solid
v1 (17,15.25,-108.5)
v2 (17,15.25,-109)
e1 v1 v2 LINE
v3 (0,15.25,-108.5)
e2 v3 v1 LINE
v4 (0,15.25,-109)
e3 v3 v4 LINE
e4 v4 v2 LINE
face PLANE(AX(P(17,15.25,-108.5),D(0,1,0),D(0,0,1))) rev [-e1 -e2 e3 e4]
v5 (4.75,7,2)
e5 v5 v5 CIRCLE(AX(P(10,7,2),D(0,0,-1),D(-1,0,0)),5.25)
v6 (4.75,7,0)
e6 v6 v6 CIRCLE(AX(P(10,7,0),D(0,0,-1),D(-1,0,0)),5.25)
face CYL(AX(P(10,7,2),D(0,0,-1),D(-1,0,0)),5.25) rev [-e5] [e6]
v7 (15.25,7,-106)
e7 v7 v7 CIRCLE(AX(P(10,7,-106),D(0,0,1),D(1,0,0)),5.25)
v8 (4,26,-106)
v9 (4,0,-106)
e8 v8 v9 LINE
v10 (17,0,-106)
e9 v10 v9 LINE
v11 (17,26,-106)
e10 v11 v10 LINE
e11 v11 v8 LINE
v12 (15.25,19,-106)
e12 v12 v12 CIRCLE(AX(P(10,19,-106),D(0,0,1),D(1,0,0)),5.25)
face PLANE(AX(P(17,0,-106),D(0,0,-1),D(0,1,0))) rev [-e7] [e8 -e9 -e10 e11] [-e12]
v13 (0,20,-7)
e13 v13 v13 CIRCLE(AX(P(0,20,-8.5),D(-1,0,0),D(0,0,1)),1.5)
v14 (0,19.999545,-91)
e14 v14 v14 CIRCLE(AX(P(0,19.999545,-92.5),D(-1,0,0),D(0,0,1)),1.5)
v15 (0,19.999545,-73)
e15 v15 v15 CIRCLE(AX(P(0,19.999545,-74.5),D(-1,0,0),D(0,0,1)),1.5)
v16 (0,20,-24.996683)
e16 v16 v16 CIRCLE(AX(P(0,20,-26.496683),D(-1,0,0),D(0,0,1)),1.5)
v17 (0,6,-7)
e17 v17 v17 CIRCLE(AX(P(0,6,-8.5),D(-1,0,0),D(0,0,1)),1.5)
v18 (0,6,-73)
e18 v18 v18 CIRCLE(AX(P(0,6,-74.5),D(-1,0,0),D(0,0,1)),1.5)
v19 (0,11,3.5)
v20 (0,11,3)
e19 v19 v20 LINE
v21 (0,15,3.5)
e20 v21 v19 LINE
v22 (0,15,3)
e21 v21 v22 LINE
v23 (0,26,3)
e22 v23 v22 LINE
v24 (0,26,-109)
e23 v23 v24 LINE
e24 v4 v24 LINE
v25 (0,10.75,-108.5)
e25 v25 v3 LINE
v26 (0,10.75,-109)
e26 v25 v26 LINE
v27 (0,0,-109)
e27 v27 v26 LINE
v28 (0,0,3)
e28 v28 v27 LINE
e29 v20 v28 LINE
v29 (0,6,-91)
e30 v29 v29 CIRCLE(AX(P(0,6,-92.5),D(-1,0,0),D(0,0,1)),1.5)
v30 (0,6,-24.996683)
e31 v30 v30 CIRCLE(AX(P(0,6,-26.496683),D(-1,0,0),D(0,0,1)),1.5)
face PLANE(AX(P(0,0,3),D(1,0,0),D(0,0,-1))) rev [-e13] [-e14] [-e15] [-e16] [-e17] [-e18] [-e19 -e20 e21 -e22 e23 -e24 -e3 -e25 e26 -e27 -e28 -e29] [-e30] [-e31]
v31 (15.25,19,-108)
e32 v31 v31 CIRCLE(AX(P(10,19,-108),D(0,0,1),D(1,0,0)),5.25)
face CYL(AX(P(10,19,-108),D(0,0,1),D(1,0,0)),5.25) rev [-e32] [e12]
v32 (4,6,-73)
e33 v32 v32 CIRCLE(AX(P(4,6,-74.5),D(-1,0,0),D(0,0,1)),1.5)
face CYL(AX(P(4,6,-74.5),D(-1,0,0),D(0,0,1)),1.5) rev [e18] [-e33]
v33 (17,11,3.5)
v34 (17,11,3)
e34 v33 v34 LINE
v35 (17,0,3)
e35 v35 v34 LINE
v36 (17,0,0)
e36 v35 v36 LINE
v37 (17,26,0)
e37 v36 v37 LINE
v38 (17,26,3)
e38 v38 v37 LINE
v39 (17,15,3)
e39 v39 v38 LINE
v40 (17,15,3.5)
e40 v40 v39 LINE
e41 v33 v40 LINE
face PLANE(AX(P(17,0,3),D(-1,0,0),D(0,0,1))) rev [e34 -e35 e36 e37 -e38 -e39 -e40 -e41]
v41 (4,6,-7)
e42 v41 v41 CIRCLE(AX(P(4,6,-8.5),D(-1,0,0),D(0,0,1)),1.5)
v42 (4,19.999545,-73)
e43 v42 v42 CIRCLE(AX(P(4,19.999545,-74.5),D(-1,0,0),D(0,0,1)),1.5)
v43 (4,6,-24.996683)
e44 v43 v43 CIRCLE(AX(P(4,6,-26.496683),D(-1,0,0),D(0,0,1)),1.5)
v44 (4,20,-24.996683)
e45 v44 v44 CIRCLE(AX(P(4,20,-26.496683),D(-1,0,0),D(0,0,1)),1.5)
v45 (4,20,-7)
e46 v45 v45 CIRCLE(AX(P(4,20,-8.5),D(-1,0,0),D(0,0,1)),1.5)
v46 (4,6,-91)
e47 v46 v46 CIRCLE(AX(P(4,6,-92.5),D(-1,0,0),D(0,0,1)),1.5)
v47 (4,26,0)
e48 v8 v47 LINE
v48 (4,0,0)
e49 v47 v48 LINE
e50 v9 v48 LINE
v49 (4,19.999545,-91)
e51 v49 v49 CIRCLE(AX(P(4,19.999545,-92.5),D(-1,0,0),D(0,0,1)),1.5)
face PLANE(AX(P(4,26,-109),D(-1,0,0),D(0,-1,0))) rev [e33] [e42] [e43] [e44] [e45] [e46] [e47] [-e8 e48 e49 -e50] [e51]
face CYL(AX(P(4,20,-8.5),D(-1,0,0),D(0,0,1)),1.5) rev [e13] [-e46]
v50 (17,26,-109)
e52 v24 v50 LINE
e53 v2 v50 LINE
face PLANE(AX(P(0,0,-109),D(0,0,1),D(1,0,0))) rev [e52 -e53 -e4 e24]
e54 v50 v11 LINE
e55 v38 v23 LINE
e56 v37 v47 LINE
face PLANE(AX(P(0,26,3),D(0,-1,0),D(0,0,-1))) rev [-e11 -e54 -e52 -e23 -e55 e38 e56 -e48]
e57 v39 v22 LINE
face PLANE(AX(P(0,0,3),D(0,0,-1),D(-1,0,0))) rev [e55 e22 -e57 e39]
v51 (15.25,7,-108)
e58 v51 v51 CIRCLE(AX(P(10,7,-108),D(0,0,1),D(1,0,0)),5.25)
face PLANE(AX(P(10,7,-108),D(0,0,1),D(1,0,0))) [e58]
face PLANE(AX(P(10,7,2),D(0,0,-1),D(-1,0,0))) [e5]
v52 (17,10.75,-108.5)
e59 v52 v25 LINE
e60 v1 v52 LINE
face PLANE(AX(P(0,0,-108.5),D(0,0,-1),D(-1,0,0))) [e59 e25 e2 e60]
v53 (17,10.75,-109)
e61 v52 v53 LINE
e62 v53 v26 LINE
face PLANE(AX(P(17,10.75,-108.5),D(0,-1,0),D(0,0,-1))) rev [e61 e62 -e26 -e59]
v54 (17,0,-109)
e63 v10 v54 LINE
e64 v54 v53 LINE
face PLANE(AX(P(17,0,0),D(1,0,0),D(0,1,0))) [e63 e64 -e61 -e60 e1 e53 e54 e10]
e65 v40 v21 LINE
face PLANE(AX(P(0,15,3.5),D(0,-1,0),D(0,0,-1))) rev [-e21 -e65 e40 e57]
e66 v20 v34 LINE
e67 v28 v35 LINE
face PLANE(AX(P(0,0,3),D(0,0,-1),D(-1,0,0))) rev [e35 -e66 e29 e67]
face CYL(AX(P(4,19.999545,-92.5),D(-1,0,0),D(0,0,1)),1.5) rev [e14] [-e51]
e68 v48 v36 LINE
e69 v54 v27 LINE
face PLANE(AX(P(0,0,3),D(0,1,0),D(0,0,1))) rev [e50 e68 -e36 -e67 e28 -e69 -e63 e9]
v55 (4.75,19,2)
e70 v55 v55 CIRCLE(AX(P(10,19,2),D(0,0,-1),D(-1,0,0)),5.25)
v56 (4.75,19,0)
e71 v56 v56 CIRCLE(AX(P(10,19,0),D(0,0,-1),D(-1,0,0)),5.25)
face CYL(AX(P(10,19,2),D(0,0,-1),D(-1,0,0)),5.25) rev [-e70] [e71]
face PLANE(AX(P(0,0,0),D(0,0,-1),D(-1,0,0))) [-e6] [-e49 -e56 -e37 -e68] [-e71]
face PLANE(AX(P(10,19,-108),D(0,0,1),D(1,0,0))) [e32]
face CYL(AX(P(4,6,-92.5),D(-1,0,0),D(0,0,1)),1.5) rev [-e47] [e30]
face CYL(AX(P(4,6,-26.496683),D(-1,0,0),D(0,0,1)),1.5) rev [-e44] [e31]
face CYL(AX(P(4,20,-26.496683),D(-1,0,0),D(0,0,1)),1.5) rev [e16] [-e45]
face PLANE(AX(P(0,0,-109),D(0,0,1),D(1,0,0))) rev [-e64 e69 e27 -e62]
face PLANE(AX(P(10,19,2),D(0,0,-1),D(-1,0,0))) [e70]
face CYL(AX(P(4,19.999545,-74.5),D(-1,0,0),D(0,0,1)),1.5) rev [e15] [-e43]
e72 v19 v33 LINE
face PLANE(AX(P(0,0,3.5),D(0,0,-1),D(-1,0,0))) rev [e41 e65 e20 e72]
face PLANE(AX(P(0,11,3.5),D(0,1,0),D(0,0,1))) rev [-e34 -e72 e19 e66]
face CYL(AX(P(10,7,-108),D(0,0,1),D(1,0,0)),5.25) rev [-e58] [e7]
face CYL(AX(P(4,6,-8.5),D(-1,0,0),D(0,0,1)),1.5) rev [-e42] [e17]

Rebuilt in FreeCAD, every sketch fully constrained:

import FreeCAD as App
import Part
import Sketcher
from FreeCAD import Vector
Q = App.Units.Quantity

doc = App.newDocument("Part")
params = doc.addObject("Spreadsheet::Sheet", "Params")
for row, (alias, value) in enumerate([
    ("sketch1_width", "17 mm"),
    ("sketch1_height", "26 mm"),
    ("pad1_length", "3 mm"),
    ("sketch2_width", "4 mm"),
    ("sketch2_height", "26 mm"),
    ("pad2_length", "109 mm"),
    ("sketch3_diameter", "3 mm"),
    ("pocket1_length", "4 mm"),
    ("sketch4_diameter", "3 mm"),
    ("pocket2_length", "4 mm"),
    ("sketch5_width", "26 mm"),
    ("sketch5_height", "3 mm"),
    ("pad3_length", "13 mm"),
    ("sketch6_diameter", "10.5 mm"),
    ("pocket3_length", "2 mm"),
    ("sketch7_diameter", "10.5 mm"),
    ("pocket4_length", "2 mm"),
    ("sketch8_width", "17 mm"),
    ("sketch8_height", "4 mm"),
    ("pad4_length", "0.5 mm"),
    ("sketch9_width", "17 mm"),
    ("sketch9_height", "4.5 mm"),
    ("pocket5_length", "0.5 mm"),
], start=1):
    params.set(f"A{row}", alias)
    params.set(f"B{row}", "=" + value)
    params.setAlias(f"B{row}", alias)

body = doc.addObject("PartDesign::Body", "Body")

# Sketch on XY plane
sketch1 = body.newObject("Sketcher::SketchObject", "Sketch")
sketch1.AttachmentSupport = (doc.getObject("XY_Plane"), [""])
sketch1.MapMode = "FlatFace"
sketch1.addGeometry(Part.LineSegment(Vector(0, 26, 0), Vector(0, 0, 0)), False)
sketch1.addGeometry(Part.LineSegment(Vector(0, 0, 0), Vector(17, 0, 0)), False)
sketch1.addGeometry(Part.LineSegment(Vector(17, 0, 0), Vector(17, 26, 0)), False)
sketch1.addGeometry(Part.LineSegment(Vector(17, 26, 0), Vector(0, 26, 0)), False)
sketch1.addConstraint(Sketcher.Constraint("Coincident", 0, 2, 1, 1))
sketch1.addConstraint(Sketcher.Constraint("Coincident", 1, 2, 2, 1))
sketch1.addConstraint(Sketcher.Constraint("Coincident", 2, 2, 3, 1))
sketch1.addConstraint(Sketcher.Constraint("Coincident", 3, 2, 0, 1))
sketch1.addConstraint(Sketcher.Constraint("Vertical", 0))
sketch1.addConstraint(Sketcher.Constraint("Horizontal", 1))
sketch1.addConstraint(Sketcher.Constraint("Vertical", 2))
sketch1.addConstraint(Sketcher.Constraint("Horizontal", 3))
sketch1.addConstraint(Sketcher.Constraint("Coincident", 0, 2, -1, 1))
sketch1.addConstraint(Sketcher.Constraint("DistanceX", 1, 1, 1, 2, Q("17 mm")))
sketch1.addConstraint(Sketcher.Constraint("DistanceY", 0, 2, 0, 1, Q("26 mm")))
sketch1.setExpression("Constraints[9]", "Params.sketch1_width")
sketch1.setExpression("Constraints[10]", "Params.sketch1_height")
pad1 = body.newObject("PartDesign::Pad", "Pad")
pad1.Profile = sketch1
pad1.setExpression("Length", "Params.pad1_length")

# Sketch on XY plane
sketch2 = body.newObject("Sketcher::SketchObject", "Sketch001")
sketch2.AttachmentSupport = (doc.getObject("XY_Plane"), [""])
sketch2.MapMode = "FlatFace"
sketch2.addGeometry(Part.LineSegment(Vector(4, 26, 0), Vector(4, 0, 0)), False)
sketch2.addGeometry(Part.LineSegment(Vector(4, 0, 0), Vector(0, 0, 0)), False)
sketch2.addGeometry(Part.LineSegment(Vector(0, 0, 0), Vector(0, 26, 0)), False)
sketch2.addGeometry(Part.LineSegment(Vector(0, 26, 0), Vector(4, 26, 0)), False)
sketch2.addConstraint(Sketcher.Constraint("Coincident", 0, 2, 1, 1))
sketch2.addConstraint(Sketcher.Constraint("Coincident", 1, 2, 2, 1))
sketch2.addConstraint(Sketcher.Constraint("Coincident", 2, 2, 3, 1))
sketch2.addConstraint(Sketcher.Constraint("Coincident", 3, 2, 0, 1))
sketch2.addConstraint(Sketcher.Constraint("Vertical", 0))
sketch2.addConstraint(Sketcher.Constraint("Horizontal", 1))
sketch2.addConstraint(Sketcher.Constraint("Vertical", 2))
sketch2.addConstraint(Sketcher.Constraint("Horizontal", 3))
sketch2.addConstraint(Sketcher.Constraint("Coincident", 1, 2, -1, 1))
sketch2.addConstraint(Sketcher.Constraint("DistanceX", 1, 2, 1, 1, Q("4 mm")))
sketch2.addConstraint(Sketcher.Constraint("DistanceY", 0, 2, 0, 1, Q("26 mm")))
sketch2.setExpression("Constraints[9]", "Params.sketch2_width")
sketch2.setExpression("Constraints[10]", "Params.sketch2_height")
pad2 = body.newObject("PartDesign::Pad", "Pad001")
pad2.Profile = sketch2
pad2.setExpression("Length", "Params.pad2_length")
pad2.Reversed = True

# Sketch on YZ plane
sketch3 = body.newObject("Sketcher::SketchObject", "Sketch002")
sketch3.AttachmentSupport = (doc.getObject("YZ_Plane"), [""])
sketch3.MapMode = "FlatFace"
sketch3.addGeometry(Part.Circle(Vector(20, -8.5, 0), Vector(0, 0, 1), 1.5), False)
sketch3.addGeometry(Part.Circle(Vector(6, -8.5, 0), Vector(0, 0, 1), 1.5), False)
sketch3.addGeometry(Part.Circle(Vector(20, -26.5, 0), Vector(0, 0, 1), 1.5), False)
sketch3.addGeometry(Part.Circle(Vector(6, -26.5, 0), Vector(0, 0, 1), 1.5), False)
sketch3.addConstraint(Sketcher.Constraint("Equal", 0, 1))
sketch3.addConstraint(Sketcher.Constraint("Equal", 1, 2))
sketch3.addConstraint(Sketcher.Constraint("Equal", 2, 3))
sketch3.addConstraint(Sketcher.Constraint("Horizontal", 0, 3, 1, 3))
sketch3.addConstraint(Sketcher.Constraint("Horizontal", 2, 3, 3, 3))
sketch3.addConstraint(Sketcher.Constraint("Vertical", 0, 3, 2, 3))
sketch3.addConstraint(Sketcher.Constraint("Vertical", 1, 3, 3, 3))
sketch3.addConstraint(Sketcher.Constraint("Diameter", 0, Q("3 mm")))
sketch3.addConstraint(Sketcher.Constraint("DistanceX", -1, 1, 0, 3, Q("20 mm")))
sketch3.addConstraint(Sketcher.Constraint("DistanceX", -1, 1, 1, 3, Q("6 mm")))
sketch3.addConstraint(Sketcher.Constraint("DistanceY", 0, 3, -1, 1, Q("8.5 mm")))
sketch3.addConstraint(Sketcher.Constraint("DistanceY", 2, 3, -1, 1, Q("26.496683 mm")))
sketch3.setExpression("Constraints[7]", "Params.sketch3_diameter")
pocket1 = body.newObject("PartDesign::Pocket", "Pocket")
pocket1.Profile = sketch3
pocket1.setExpression("Length", "Params.pocket1_length")
pocket1.Reversed = True

# Sketch on YZ plane
sketch4 = body.newObject("Sketcher::SketchObject", "Sketch003")
sketch4.AttachmentSupport = (doc.getObject("YZ_Plane"), [""])
sketch4.MapMode = "FlatFace"
sketch4.addGeometry(Part.Circle(Vector(20, -92.5, 0), Vector(0, 0, 1), 1.5), False)
sketch4.addGeometry(Part.Circle(Vector(6, -92.5, 0), Vector(0, 0, 1), 1.5), False)
sketch4.addGeometry(Part.Circle(Vector(20, -74.5, 0), Vector(0, 0, 1), 1.5), False)
sketch4.addGeometry(Part.Circle(Vector(6, -74.5, 0), Vector(0, 0, 1), 1.5), False)
sketch4.addConstraint(Sketcher.Constraint("Equal", 0, 1))
sketch4.addConstraint(Sketcher.Constraint("Equal", 1, 2))
sketch4.addConstraint(Sketcher.Constraint("Equal", 2, 3))
sketch4.addConstraint(Sketcher.Constraint("Horizontal", 0, 3, 1, 3))
sketch4.addConstraint(Sketcher.Constraint("Horizontal", 2, 3, 3, 3))
sketch4.addConstraint(Sketcher.Constraint("Vertical", 0, 3, 2, 3))
sketch4.addConstraint(Sketcher.Constraint("Vertical", 1, 3, 3, 3))
sketch4.addConstraint(Sketcher.Constraint("Diameter", 0, Q("3 mm")))
sketch4.addConstraint(Sketcher.Constraint("DistanceX", -1, 1, 1, 3, Q("6 mm")))
sketch4.addConstraint(Sketcher.Constraint("DistanceY", 0, 3, 2, 3, Q("18 mm")))
sketch4.addConstraint(Sketcher.Constraint("DistanceY", 0, 3, -1, 1, Q("92.5 mm")))
sketch4.addConstraint(Sketcher.Constraint("DistanceX", -1, 1, 0, 3, Q("19.999545 mm")))
sketch4.setExpression("Constraints[7]", "Params.sketch4_diameter")
pocket2 = body.newObject("PartDesign::Pocket", "Pocket001")
pocket2.Profile = sketch4
pocket2.setExpression("Length", "Params.pocket2_length")
pocket2.Reversed = True

# Sketch on YZ plane
sketch5 = body.newObject("Sketcher::SketchObject", "Sketch004")
sketch5.AttachmentSupport = (doc.getObject("YZ_Plane"), [""])
sketch5.MapMode = "FlatFace"
sketch5.AttachmentOffset = App.Placement(Vector(0, 0, 4), App.Rotation())
sketch5.addGeometry(Part.LineSegment(Vector(26, -106, 0), Vector(0, -106, 0)), False)
sketch5.addGeometry(Part.LineSegment(Vector(0, -106, 0), Vector(0, -109, 0)), False)
sketch5.addGeometry(Part.LineSegment(Vector(0, -109, 0), Vector(26, -109, 0)), False)
sketch5.addGeometry(Part.LineSegment(Vector(26, -109, 0), Vector(26, -106, 0)), False)
sketch5.addConstraint(Sketcher.Constraint("Coincident", 0, 2, 1, 1))
sketch5.addConstraint(Sketcher.Constraint("Coincident", 1, 2, 2, 1))
sketch5.addConstraint(Sketcher.Constraint("Coincident", 2, 2, 3, 1))
sketch5.addConstraint(Sketcher.Constraint("Coincident", 3, 2, 0, 1))
sketch5.addConstraint(Sketcher.Constraint("Horizontal", 0))
sketch5.addConstraint(Sketcher.Constraint("Vertical", 1))
sketch5.addConstraint(Sketcher.Constraint("Horizontal", 2))
sketch5.addConstraint(Sketcher.Constraint("Vertical", 3))
sketch5.addConstraint(Sketcher.Constraint("PointOnObject", 0, 2, -2))
sketch5.addConstraint(Sketcher.Constraint("DistanceX", 0, 2, 0, 1, Q("26 mm")))
sketch5.addConstraint(Sketcher.Constraint("DistanceY", 1, 2, 1, 1, Q("3 mm")))
sketch5.addConstraint(Sketcher.Constraint("DistanceY", 0, 2, -1, 1, Q("106 mm")))
sketch5.setExpression("Constraints[9]", "Params.sketch5_width")
sketch5.setExpression("Constraints[10]", "Params.sketch5_height")
pad3 = body.newObject("PartDesign::Pad", "Pad002")
pad3.Profile = sketch5
pad3.setExpression("Length", "Params.pad3_length")

# Sketch on XY plane
sketch6 = body.newObject("Sketcher::SketchObject", "Sketch005")
sketch6.AttachmentSupport = (doc.getObject("XY_Plane"), [""])
sketch6.MapMode = "FlatFace"
sketch6.addGeometry(Part.Circle(Vector(10, 7, 0), Vector(0, 0, 1), 5), False)
sketch6.addGeometry(Part.Circle(Vector(10, 19, 0), Vector(0, 0, 1), 5), False)
sketch6.addConstraint(Sketcher.Constraint("Equal", 0, 1))
sketch6.addConstraint(Sketcher.Constraint("Vertical", 0, 3, 1, 3))
sketch6.addConstraint(Sketcher.Constraint("Diameter", 0, Q("10.5 mm")))
sketch6.addConstraint(Sketcher.Constraint("DistanceX", -1, 1, 0, 3, Q("10 mm")))
sketch6.addConstraint(Sketcher.Constraint("DistanceY", -1, 1, 0, 3, Q("7 mm")))
sketch6.addConstraint(Sketcher.Constraint("DistanceY", -1, 1, 1, 3, Q("19 mm")))
sketch6.setExpression("Constraints[2]", "Params.sketch6_diameter")
pocket3 = body.newObject("PartDesign::Pocket", "Pocket002")
pocket3.Profile = sketch6
pocket3.setExpression("Length", "Params.pocket3_length")
pocket3.Reversed = True

# Sketch on XY plane
sketch7 = body.newObject("Sketcher::SketchObject", "Sketch006")
sketch7.AttachmentSupport = (doc.getObject("XY_Plane"), [""])
sketch7.MapMode = "FlatFace"
sketch7.AttachmentOffset = App.Placement(Vector(0, 0, -108), App.Rotation())
sketch7.addGeometry(Part.Circle(Vector(10, 19, 0), Vector(0, 0, 1), 5), False)
sketch7.addGeometry(Part.Circle(Vector(10, 7, 0), Vector(0, 0, 1), 5), False)
sketch7.addConstraint(Sketcher.Constraint("Equal", 0, 1))
sketch7.addConstraint(Sketcher.Constraint("Vertical", 0, 3, 1, 3))
sketch7.addConstraint(Sketcher.Constraint("Diameter", 0, Q("10.5 mm")))
sketch7.addConstraint(Sketcher.Constraint("DistanceX", -1, 1, 0, 3, Q("10 mm")))
sketch7.addConstraint(Sketcher.Constraint("DistanceY", -1, 1, 0, 3, Q("19 mm")))
sketch7.addConstraint(Sketcher.Constraint("DistanceY", -1, 1, 1, 3, Q("7 mm")))
sketch7.setExpression("Constraints[2]", "Params.sketch7_diameter")
pocket4 = body.newObject("PartDesign::Pocket", "Pocket003")
pocket4.Profile = sketch7
pocket4.setExpression("Length", "Params.pocket4_length")
pocket4.Reversed = True

# Sketch on XY plane
sketch8 = body.newObject("Sketcher::SketchObject", "Sketch007")
sketch8.AttachmentSupport = (doc.getObject("XY_Plane"), [""])
sketch8.MapMode = "FlatFace"
sketch8.AttachmentOffset = App.Placement(Vector(0, 0, 3), App.Rotation())
sketch8.addGeometry(Part.LineSegment(Vector(0, 15, 0), Vector(0, 11, 0)), False)
sketch8.addGeometry(Part.LineSegment(Vector(0, 11, 0), Vector(17, 11, 0)), False)
sketch8.addGeometry(Part.LineSegment(Vector(17, 11, 0), Vector(17, 15, 0)), False)
sketch8.addGeometry(Part.LineSegment(Vector(17, 15, 0), Vector(0, 15, 0)), False)
sketch8.addConstraint(Sketcher.Constraint("Coincident", 0, 2, 1, 1))
sketch8.addConstraint(Sketcher.Constraint("Coincident", 1, 2, 2, 1))
sketch8.addConstraint(Sketcher.Constraint("Coincident", 2, 2, 3, 1))
sketch8.addConstraint(Sketcher.Constraint("Coincident", 3, 2, 0, 1))
sketch8.addConstraint(Sketcher.Constraint("Vertical", 0))
sketch8.addConstraint(Sketcher.Constraint("Horizontal", 1))
sketch8.addConstraint(Sketcher.Constraint("Vertical", 2))
sketch8.addConstraint(Sketcher.Constraint("Horizontal", 3))
sketch8.addConstraint(Sketcher.Constraint("PointOnObject", 0, 2, -2))
sketch8.addConstraint(Sketcher.Constraint("DistanceX", 1, 1, 1, 2, Q("17 mm")))
sketch8.addConstraint(Sketcher.Constraint("DistanceY", 0, 2, 0, 1, Q("4 mm")))
sketch8.addConstraint(Sketcher.Constraint("DistanceY", -1, 1, 0, 2, Q("11 mm")))
sketch8.setExpression("Constraints[9]", "Params.sketch8_width")
sketch8.setExpression("Constraints[10]", "Params.sketch8_height")
pad4 = body.newObject("PartDesign::Pad", "Pad003")
pad4.Profile = sketch8
pad4.setExpression("Length", "Params.pad4_length")

# Sketch on XY plane
sketch9 = body.newObject("Sketcher::SketchObject", "Sketch008")
sketch9.AttachmentSupport = (doc.getObject("XY_Plane"), [""])
sketch9.MapMode = "FlatFace"
sketch9.AttachmentOffset = App.Placement(Vector(0, 0, -109), App.Rotation())
sketch9.addGeometry(Part.LineSegment(Vector(17, 15.2, 0), Vector(17, 10.8, 0)), False)
sketch9.addGeometry(Part.LineSegment(Vector(17, 10.8, 0), Vector(0, 10.8, 0)), False)
sketch9.addGeometry(Part.LineSegment(Vector(0, 10.8, 0), Vector(0, 15.2, 0)), False)
sketch9.addGeometry(Part.LineSegment(Vector(0, 15.2, 0), Vector(17, 15.2, 0)), False)
sketch9.addConstraint(Sketcher.Constraint("Coincident", 0, 2, 1, 1))
sketch9.addConstraint(Sketcher.Constraint("Coincident", 1, 2, 2, 1))
sketch9.addConstraint(Sketcher.Constraint("Coincident", 2, 2, 3, 1))
sketch9.addConstraint(Sketcher.Constraint("Coincident", 3, 2, 0, 1))
sketch9.addConstraint(Sketcher.Constraint("Vertical", 0))
sketch9.addConstraint(Sketcher.Constraint("Horizontal", 1))
sketch9.addConstraint(Sketcher.Constraint("Vertical", 2))
sketch9.addConstraint(Sketcher.Constraint("Horizontal", 3))
sketch9.addConstraint(Sketcher.Constraint("PointOnObject", 1, 2, -2))
sketch9.addConstraint(Sketcher.Constraint("DistanceX", 1, 2, 1, 1, Q("17 mm")))
sketch9.addConstraint(Sketcher.Constraint("DistanceY", 0, 2, 0, 1, Q("4.5 mm")))
sketch9.addConstraint(Sketcher.Constraint("DistanceY", -1, 1, 0, 2, Q("10.75 mm")))
sketch9.setExpression("Constraints[9]", "Params.sketch9_width")
sketch9.setExpression("Constraints[10]", "Params.sketch9_height")
pocket5 = body.newObject("PartDesign::Pocket", "Pocket004")
pocket5.Profile = sketch9
pocket5.setExpression("Length", "Params.pocket5_length")
pocket5.Reversed = True

doc.recompute()
